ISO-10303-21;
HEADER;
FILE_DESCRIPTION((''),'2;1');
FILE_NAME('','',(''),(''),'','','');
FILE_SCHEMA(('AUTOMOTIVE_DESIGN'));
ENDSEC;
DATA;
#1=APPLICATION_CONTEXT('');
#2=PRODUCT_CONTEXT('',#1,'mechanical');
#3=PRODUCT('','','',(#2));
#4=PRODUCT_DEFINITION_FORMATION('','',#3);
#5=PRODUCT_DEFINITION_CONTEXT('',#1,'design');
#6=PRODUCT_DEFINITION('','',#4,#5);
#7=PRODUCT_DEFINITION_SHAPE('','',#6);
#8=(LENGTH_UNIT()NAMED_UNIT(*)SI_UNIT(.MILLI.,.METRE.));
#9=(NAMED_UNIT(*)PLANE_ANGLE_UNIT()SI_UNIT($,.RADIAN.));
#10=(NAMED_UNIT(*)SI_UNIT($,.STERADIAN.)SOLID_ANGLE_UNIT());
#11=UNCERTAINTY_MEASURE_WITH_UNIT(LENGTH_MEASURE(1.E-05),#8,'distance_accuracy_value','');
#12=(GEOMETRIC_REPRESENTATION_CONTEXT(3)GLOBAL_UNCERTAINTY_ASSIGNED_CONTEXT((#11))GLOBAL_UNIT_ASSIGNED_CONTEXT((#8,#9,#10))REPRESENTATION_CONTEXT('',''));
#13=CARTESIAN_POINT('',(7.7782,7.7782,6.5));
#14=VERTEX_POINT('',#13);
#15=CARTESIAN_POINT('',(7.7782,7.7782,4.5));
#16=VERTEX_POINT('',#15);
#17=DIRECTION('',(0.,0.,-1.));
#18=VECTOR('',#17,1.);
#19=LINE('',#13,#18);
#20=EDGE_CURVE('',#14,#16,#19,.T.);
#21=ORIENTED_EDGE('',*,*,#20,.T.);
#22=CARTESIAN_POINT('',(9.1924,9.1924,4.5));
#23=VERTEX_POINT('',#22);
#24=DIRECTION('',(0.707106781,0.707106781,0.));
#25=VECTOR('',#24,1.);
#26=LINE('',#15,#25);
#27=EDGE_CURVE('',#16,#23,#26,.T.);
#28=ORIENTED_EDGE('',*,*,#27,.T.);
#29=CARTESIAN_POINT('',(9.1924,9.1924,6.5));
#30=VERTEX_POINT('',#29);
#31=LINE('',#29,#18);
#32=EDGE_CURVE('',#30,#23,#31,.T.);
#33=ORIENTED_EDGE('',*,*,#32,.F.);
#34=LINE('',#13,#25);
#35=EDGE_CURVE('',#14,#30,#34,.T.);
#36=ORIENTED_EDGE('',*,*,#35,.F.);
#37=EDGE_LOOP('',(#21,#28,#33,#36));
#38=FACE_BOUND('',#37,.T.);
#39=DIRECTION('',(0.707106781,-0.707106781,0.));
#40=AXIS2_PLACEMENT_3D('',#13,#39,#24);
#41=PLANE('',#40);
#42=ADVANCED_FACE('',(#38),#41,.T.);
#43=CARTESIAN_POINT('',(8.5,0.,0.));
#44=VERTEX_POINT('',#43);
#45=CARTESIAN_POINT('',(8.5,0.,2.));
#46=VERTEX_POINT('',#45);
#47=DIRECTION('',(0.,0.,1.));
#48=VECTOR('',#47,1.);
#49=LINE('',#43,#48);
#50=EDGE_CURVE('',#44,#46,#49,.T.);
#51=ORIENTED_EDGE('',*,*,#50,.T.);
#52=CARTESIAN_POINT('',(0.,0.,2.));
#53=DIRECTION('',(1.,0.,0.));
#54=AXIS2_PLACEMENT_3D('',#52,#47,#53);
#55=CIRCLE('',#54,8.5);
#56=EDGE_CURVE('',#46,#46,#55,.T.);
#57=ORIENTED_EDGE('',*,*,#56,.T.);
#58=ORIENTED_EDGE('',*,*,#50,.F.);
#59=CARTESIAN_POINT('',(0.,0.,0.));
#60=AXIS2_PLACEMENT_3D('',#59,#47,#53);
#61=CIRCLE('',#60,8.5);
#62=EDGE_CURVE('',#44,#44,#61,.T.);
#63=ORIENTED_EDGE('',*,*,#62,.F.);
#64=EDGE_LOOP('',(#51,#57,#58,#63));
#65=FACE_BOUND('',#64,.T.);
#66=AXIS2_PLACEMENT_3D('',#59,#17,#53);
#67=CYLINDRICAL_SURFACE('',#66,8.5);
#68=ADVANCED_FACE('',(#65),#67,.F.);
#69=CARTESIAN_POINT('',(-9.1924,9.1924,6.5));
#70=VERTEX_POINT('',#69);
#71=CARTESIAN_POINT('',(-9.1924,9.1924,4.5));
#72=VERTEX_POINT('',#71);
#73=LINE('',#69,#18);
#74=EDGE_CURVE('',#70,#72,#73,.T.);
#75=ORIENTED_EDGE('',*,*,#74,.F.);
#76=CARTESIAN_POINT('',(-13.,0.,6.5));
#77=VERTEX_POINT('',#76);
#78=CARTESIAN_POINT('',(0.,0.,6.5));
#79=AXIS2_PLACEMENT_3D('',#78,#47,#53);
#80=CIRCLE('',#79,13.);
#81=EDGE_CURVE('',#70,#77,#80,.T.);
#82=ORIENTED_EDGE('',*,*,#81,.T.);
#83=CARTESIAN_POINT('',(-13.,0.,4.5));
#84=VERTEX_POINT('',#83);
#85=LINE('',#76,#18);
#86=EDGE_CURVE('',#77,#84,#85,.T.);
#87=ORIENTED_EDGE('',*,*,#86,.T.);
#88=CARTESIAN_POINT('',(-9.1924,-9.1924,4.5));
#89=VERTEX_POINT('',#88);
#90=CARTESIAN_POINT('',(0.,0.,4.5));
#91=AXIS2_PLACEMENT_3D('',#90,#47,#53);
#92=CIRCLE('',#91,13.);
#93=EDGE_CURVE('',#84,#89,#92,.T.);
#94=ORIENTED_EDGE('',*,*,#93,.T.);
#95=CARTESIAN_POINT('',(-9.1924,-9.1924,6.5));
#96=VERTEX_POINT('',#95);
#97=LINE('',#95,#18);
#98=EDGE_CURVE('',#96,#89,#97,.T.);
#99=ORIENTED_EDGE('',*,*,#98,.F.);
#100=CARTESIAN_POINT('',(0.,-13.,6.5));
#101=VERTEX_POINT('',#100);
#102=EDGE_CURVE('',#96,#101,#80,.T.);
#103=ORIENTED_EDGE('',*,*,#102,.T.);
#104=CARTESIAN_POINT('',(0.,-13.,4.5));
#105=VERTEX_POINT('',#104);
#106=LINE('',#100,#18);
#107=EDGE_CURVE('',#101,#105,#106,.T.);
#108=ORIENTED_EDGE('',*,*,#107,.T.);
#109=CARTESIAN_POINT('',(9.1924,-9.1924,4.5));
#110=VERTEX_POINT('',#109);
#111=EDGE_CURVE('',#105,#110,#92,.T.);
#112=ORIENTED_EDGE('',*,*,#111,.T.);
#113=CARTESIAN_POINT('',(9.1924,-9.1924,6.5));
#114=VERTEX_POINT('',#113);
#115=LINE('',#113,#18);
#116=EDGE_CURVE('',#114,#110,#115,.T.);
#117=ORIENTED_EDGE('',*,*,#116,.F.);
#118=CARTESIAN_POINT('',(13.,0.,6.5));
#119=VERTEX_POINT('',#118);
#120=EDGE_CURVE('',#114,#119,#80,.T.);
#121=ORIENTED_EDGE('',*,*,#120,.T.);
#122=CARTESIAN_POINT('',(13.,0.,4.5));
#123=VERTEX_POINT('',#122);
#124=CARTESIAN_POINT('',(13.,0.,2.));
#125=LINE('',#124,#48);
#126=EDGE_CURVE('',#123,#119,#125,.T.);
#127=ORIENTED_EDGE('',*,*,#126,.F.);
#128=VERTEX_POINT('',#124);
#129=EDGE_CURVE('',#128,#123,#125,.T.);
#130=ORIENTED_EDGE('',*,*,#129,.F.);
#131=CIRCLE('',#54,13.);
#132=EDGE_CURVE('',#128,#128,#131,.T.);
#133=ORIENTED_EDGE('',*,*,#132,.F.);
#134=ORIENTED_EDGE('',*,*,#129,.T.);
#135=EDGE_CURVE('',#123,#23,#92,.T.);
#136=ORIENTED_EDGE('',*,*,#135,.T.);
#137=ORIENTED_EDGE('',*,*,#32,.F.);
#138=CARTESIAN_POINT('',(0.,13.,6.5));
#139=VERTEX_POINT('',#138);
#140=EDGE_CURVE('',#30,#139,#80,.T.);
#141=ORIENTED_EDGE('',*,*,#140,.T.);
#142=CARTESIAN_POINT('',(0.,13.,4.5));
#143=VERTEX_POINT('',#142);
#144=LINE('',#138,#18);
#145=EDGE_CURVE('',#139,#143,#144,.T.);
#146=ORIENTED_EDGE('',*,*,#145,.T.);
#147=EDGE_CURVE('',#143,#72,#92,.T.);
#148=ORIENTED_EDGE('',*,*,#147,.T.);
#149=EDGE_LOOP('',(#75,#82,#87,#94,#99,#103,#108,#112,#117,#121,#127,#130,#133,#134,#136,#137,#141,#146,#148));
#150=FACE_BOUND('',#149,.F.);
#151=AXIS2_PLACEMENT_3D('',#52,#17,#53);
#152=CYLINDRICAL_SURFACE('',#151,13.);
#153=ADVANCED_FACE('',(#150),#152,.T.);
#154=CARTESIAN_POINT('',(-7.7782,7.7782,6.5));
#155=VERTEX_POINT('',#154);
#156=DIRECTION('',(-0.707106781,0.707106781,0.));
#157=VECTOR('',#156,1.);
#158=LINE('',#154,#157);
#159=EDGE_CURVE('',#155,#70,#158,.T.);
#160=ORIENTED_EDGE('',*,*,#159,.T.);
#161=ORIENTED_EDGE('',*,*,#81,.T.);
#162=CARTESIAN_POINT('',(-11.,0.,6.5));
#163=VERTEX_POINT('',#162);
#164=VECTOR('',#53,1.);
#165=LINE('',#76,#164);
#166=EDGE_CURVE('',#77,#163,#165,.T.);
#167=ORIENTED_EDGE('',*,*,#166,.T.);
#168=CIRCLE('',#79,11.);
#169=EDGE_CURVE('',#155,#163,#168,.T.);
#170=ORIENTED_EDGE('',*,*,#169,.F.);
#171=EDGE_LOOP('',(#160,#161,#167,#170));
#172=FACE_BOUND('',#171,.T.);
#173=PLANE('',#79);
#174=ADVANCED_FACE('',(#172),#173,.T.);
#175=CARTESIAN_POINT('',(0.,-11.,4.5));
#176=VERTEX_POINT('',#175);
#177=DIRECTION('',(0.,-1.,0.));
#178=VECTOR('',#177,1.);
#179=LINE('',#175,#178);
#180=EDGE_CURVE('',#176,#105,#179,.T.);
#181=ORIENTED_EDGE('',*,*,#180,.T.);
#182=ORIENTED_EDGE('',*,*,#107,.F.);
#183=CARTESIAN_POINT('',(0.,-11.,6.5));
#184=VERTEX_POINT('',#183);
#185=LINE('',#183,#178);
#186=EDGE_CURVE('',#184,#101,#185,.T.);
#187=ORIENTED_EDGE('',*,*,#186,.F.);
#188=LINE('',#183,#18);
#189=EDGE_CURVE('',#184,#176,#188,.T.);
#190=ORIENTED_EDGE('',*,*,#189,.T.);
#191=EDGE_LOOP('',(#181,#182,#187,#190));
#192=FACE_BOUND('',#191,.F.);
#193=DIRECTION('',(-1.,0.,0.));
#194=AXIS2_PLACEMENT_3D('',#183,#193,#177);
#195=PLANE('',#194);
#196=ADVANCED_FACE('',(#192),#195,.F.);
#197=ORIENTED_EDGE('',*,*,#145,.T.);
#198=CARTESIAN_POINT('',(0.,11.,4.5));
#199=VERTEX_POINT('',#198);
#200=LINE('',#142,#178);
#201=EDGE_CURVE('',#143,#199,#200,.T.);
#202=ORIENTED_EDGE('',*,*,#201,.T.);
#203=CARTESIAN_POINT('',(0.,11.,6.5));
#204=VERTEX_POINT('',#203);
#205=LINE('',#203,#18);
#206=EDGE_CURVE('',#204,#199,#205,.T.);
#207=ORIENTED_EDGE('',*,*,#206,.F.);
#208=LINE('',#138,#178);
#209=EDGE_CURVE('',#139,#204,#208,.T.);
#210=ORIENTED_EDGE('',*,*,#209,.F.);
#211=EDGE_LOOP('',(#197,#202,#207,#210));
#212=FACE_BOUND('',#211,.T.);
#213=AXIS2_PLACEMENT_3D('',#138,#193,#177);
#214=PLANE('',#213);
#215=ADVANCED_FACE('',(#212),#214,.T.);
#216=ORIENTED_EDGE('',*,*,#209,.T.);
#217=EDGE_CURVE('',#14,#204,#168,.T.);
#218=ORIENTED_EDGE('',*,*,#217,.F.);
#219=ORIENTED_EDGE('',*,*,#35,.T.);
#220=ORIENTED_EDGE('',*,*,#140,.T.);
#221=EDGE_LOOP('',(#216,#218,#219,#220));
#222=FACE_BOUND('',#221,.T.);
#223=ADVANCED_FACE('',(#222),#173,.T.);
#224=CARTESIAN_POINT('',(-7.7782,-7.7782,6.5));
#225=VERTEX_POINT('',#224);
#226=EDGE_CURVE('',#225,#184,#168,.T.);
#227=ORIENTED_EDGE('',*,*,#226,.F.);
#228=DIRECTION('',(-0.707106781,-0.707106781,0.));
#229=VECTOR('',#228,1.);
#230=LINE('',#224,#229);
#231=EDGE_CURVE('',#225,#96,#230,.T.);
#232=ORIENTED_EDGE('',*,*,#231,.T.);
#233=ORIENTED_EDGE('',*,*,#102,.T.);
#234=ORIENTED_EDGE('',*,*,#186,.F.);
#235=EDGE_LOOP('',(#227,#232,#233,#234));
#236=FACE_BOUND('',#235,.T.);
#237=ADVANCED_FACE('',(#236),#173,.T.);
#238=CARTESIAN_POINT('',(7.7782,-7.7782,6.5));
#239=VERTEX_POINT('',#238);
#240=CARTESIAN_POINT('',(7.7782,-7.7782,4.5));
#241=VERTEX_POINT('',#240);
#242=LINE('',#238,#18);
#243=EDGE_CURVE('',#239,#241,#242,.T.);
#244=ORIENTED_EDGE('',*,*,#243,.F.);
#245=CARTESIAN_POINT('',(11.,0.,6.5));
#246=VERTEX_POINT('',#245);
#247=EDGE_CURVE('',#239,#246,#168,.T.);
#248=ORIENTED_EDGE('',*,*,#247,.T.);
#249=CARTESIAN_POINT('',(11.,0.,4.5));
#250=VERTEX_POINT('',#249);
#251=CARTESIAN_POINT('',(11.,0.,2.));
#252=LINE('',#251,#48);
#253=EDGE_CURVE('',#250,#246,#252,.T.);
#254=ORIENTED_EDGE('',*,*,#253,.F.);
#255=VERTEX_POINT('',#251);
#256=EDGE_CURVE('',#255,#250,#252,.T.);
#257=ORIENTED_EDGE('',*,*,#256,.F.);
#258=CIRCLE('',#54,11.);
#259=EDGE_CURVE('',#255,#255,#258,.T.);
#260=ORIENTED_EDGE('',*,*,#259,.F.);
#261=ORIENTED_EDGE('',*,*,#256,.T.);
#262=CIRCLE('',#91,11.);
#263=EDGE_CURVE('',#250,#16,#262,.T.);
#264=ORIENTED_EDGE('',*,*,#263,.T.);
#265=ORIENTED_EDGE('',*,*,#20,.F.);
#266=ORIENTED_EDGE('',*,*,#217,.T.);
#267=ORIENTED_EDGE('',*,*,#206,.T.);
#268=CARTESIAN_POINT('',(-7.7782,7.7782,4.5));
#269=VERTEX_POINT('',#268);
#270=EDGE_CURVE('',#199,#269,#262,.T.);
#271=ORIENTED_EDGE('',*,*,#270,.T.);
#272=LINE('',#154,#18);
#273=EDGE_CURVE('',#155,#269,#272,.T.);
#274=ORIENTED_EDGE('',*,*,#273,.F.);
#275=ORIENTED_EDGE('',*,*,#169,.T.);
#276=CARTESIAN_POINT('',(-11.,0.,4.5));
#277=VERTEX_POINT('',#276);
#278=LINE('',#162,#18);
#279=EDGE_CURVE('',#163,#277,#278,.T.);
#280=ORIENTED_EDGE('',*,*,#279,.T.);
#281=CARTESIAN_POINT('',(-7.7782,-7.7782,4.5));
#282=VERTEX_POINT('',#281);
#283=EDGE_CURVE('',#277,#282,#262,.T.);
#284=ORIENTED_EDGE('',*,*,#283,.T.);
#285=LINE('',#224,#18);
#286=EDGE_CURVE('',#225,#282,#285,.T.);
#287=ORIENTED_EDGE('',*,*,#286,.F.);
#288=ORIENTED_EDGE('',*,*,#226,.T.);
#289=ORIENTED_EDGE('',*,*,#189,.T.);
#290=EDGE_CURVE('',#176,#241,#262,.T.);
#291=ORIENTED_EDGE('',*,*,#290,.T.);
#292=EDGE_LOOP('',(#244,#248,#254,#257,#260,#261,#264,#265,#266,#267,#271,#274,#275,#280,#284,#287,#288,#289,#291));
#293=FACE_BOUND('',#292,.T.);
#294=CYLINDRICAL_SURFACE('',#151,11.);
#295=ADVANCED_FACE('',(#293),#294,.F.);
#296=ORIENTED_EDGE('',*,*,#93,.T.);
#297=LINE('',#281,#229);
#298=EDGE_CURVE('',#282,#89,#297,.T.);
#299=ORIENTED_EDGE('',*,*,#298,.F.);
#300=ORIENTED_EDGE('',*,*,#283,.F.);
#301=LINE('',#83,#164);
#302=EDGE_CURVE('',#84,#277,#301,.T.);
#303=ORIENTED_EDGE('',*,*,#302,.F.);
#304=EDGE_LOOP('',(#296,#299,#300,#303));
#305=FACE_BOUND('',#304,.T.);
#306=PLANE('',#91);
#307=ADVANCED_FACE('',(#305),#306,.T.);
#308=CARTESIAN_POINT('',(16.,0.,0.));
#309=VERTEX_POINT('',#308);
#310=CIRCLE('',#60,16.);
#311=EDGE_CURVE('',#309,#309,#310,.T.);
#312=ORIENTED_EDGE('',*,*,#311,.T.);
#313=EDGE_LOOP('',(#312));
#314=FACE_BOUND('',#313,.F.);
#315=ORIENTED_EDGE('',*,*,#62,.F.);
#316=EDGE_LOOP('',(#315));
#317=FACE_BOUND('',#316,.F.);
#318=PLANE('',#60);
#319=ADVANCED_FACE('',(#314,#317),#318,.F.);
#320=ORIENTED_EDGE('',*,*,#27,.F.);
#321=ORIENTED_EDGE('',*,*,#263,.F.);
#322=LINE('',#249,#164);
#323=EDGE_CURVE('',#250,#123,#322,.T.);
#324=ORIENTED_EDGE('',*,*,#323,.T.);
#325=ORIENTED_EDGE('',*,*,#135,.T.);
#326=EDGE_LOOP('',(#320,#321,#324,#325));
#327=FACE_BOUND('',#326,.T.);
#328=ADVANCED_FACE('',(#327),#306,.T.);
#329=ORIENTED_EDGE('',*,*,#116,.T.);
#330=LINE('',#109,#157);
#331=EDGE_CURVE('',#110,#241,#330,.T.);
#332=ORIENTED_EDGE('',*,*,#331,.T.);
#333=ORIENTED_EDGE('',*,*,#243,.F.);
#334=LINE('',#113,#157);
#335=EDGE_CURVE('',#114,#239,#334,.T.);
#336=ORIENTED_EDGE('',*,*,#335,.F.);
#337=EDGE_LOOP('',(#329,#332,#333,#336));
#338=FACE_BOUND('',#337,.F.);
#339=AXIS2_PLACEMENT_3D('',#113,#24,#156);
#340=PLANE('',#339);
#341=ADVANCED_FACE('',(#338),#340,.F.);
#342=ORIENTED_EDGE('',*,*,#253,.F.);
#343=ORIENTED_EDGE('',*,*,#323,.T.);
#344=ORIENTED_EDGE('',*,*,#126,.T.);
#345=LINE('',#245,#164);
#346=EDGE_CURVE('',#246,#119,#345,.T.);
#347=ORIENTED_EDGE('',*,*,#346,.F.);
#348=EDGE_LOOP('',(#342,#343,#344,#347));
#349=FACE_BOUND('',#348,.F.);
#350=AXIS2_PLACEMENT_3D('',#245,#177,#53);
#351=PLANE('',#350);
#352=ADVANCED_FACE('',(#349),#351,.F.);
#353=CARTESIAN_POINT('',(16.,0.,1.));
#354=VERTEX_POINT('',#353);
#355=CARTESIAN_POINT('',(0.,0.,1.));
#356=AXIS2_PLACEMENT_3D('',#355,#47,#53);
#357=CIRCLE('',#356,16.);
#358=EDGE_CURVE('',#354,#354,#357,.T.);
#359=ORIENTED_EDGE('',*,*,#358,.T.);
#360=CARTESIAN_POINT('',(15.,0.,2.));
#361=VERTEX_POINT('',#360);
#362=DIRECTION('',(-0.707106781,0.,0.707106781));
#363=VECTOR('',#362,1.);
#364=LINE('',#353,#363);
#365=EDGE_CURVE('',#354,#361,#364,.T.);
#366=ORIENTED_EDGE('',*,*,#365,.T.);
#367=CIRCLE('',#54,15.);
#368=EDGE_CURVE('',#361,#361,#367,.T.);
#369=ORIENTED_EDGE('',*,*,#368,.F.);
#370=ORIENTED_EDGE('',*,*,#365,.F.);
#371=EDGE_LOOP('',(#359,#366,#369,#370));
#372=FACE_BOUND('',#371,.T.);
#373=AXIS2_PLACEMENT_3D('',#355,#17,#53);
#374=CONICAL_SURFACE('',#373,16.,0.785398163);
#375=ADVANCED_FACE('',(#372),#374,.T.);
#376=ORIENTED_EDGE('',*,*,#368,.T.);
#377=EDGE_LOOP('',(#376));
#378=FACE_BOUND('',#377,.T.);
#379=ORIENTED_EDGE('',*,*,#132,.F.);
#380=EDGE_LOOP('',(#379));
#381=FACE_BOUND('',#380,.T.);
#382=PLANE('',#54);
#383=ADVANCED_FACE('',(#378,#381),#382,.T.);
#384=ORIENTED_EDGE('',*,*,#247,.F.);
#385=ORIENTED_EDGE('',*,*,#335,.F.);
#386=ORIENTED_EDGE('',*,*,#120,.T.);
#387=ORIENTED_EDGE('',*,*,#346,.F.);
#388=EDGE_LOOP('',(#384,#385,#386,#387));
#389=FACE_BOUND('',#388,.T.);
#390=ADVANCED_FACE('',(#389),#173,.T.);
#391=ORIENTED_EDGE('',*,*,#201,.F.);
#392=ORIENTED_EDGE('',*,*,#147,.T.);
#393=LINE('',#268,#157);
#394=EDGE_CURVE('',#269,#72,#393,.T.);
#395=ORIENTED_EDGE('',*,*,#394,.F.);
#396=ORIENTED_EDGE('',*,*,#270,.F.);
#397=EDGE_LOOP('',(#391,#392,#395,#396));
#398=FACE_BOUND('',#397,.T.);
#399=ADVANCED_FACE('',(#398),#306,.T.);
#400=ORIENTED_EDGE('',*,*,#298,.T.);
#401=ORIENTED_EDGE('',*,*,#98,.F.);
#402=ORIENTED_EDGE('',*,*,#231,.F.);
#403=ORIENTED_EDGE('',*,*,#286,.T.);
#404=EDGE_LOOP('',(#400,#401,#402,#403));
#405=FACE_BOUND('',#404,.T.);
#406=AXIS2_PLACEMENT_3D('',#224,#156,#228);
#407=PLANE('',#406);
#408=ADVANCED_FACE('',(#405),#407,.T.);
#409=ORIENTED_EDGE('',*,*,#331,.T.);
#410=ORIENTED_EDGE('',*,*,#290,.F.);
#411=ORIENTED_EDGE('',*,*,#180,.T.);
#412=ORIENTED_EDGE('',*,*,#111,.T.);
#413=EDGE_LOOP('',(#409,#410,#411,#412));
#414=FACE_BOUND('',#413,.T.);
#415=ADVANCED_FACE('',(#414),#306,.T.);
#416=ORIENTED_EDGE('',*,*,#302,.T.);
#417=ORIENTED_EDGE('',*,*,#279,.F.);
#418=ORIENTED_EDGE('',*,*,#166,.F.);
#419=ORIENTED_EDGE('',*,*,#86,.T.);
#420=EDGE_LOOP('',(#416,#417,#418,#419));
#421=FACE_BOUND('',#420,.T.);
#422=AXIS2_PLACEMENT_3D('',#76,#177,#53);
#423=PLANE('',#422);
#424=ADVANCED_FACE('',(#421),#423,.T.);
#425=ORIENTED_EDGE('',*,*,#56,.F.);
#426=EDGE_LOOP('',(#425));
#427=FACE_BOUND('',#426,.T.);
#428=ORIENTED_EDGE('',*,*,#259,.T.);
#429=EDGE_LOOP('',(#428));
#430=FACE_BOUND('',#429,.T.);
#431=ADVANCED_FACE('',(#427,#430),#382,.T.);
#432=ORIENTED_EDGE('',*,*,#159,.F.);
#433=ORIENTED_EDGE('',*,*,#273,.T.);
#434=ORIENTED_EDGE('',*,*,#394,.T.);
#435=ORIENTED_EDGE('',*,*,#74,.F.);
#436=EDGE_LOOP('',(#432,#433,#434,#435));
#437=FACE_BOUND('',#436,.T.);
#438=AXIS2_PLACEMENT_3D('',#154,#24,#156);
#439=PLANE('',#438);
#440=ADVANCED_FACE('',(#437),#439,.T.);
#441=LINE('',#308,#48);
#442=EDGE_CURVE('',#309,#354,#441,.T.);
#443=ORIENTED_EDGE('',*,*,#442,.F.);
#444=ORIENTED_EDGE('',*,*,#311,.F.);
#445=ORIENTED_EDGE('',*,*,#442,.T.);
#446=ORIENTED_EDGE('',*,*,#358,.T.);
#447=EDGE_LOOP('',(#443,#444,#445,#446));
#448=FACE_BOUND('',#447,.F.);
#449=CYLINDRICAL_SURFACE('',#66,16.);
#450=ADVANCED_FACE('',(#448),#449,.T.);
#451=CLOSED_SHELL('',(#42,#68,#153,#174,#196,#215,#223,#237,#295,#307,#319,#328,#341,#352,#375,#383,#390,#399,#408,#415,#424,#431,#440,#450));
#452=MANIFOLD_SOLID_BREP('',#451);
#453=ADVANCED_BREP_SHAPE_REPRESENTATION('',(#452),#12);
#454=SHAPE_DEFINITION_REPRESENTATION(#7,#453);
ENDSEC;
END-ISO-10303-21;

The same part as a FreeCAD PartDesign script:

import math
import FreeCAD as App
import Part
import Sketcher

V = App.Vector


def edges_at(feature, points):
    """Names of the edges that pass closest to the given points."""
    edges = feature.Shape.Edges
    near = lambda p: min(range(len(edges)), key=lambda i: edges[i].distToShape(Part.Vertex(*p))[0])
    return sorted({f"Edge{near(p) + 1}" for p in points})

doc = App.newDocument("Part")
body = doc.addObject("PartDesign::Body", "Body")

sketch1 = body.newObject("Sketcher::SketchObject", "Sketch")
sketch1.AttachmentSupport = (doc.getObject("XY_Plane"), [""])
sketch1.MapMode = "FlatFace"
sketch1.addGeometry([
    Part.Circle(V(0, 0, 0), V(0, 0, 1), 16),
    Part.Circle(V(0, 0, 0), V(0, 0, 1), 8),
], False)
sketch1.addConstraint([
    Sketcher.Constraint("Coincident", 0, 3, -1, 1),
    Sketcher.Constraint("Coincident", 1, 3, -1, 1),
    Sketcher.Constraint("Diameter", 0, 32.0),
    Sketcher.Constraint("Diameter", 1, 17.0),
])
pad1 = body.newObject("PartDesign::Pad", "Pad")
pad1.Profile = sketch1
pad1.Length = 2

sketch2 = body.newObject("Sketcher::SketchObject", "Sketch001")
sketch2.AttachmentSupport = (doc.getObject("XY_Plane"), [""])
sketch2.MapMode = "FlatFace"
sketch2.AttachmentOffset = App.Placement(V(0, 0, 2), App.Rotation())
sketch2.addGeometry([
    Part.Circle(V(0, 0, 0), V(0, 0, 1), 13),
    Part.Circle(V(0, 0, 0), V(0, 0, 1), 11),
], False)
sketch2.addConstraint([
    Sketcher.Constraint("Coincident", 0, 3, -1, 1),
    Sketcher.Constraint("Coincident", 1, 3, -1, 1),
    Sketcher.Constraint("Diameter", 0, 26.0),
    Sketcher.Constraint("Diameter", 1, 22.0),
])
pad2 = body.newObject("PartDesign::Pad", "Pad001")
pad2.Profile = sketch2
pad2.Length = 4.5

sketch3 = body.newObject("Sketcher::SketchObject", "Sketch002")
sketch3.AttachmentSupport = (doc.getObject("XY_Plane"), [""])
sketch3.MapMode = "FlatFace"
sketch3.AttachmentOffset = App.Placement(V(0, 0, 6.5), App.Rotation())
sketch3.addGeometry([
    Part.ArcOfCircle(Part.Circle(V(0, 0, 0), V(0, 0, 1), 11), math.radians(0), math.radians(45)),
    Part.LineSegment(V(11, 0, 0), V(13, 0, 0)),
    Part.ArcOfCircle(Part.Circle(V(0, 0, 0), V(0, 0, 1), 13), math.radians(0), math.radians(45)),
    Part.LineSegment(V(9.2, 9.2, 0), V(7.8, 7.8, 0)),
    Part.LineSegment(V(9.2, -9.2, 0), V(7.8, -7.8, 0)),
    Part.ArcOfCircle(Part.Circle(V(0, 0, 0), V(0, 0, 1), 11), math.radians(-90), math.radians(-45)),
    Part.LineSegment(V(0, -11, 0), V(0, -13, 0)),
    Part.ArcOfCircle(Part.Circle(V(0, 0, 0), V(0, 0, 1), 13), math.radians(-90), math.radians(-45)),
    Part.ArcOfCircle(Part.Circle(V(0, 0, 0), V(0, 0, 1), 11), math.radians(90), math.radians(135)),
    Part.LineSegment(V(0, 11, 0), V(0, 13, 0)),
    Part.ArcOfCircle(Part.Circle(V(0, 0, 0), V(0, 0, 1), 13), math.radians(90), math.radians(135)),
    Part.LineSegment(V(-9.2, 9.2, 0), V(-7.8, 7.8, 0)),
    Part.LineSegment(V(-9.2, -9.2, 0), V(-7.8, -7.8, 0)),
    Part.ArcOfCircle(Part.Circle(V(0, 0, 0), V(0, 0, 1), 11), math.radians(180), math.radians(225)),
    Part.LineSegment(V(-11, 0, 0), V(-13, 0, 0)),
    Part.ArcOfCircle(Part.Circle(V(0, 0, 0), V(0, 0, 1), 13), math.radians(180), math.radians(225)),
], False)
sketch3.addConstraint([
    Sketcher.Constraint("Coincident", 0, 1, 1, 1),
    Sketcher.Constraint("Coincident", 1, 2, 2, 1),
    Sketcher.Constraint("Coincident", 2, 2, 3, 1),
    Sketcher.Constraint("Coincident", 3, 2, 0, 2),
    Sketcher.Constraint("Coincident", 4, 2, 5, 2),
    Sketcher.Constraint("Coincident", 5, 1, 6, 1),
    Sketcher.Constraint("Coincident", 6, 2, 7, 1),
    Sketcher.Constraint("Coincident", 7, 2, 4, 1),
    Sketcher.Constraint("Coincident", 8, 1, 9, 1),
    Sketcher.Constraint("Coincident", 9, 2, 10, 1),
    Sketcher.Constraint("Coincident", 10, 2, 11, 1),
    Sketcher.Constraint("Coincident", 11, 2, 8, 2),
    Sketcher.Constraint("Coincident", 12, 2, 13, 2),
    Sketcher.Constraint("Coincident", 13, 1, 14, 1),
    Sketcher.Constraint("Coincident", 14, 2, 15, 1),
    Sketcher.Constraint("Coincident", 15, 2, 12, 1),
    Sketcher.Constraint("Horizontal", 1),
    Sketcher.Constraint("Vertical", 6),
    Sketcher.Constraint("Vertical", 9),
    Sketcher.Constraint("Horizontal", 14),
    Sketcher.Constraint("Coincident", 0, 3, -1, 1),
    Sketcher.Constraint("Coincident", 2, 3, -1, 1),
    Sketcher.Constraint("Coincident", 5, 3, -1, 1),
    Sketcher.Constraint("Coincident", 7, 3, -1, 1),
    Sketcher.Constraint("Coincident", 8, 3, -1, 1),
    Sketcher.Constraint("Coincident", 10, 3, -1, 1),
    Sketcher.Constraint("Coincident", 13, 3, -1, 1),
    Sketcher.Constraint("Coincident", 15, 3, -1, 1),
    Sketcher.Constraint("Equal", 0, 5),
    Sketcher.Constraint("Equal", 2, 7),
    Sketcher.Constraint("Equal", 5, 8),
    Sketcher.Constraint("Equal", 7, 10),
    Sketcher.Constraint("Equal", 8, 13),
    Sketcher.Constraint("Equal", 10, 15),
    Sketcher.Constraint("PointOnObject", 0, 1, -1),
    Sketcher.Constraint("PointOnObject", 5, 1, -2),
    Sketcher.Constraint("PointOnObject", 8, 1, -2),
    Sketcher.Constraint("PointOnObject", 13, 1, -1),
    Sketcher.Constraint("Perpendicular", 3, 4),
    Sketcher.Constraint("Parallel", 4, 11),
    Sketcher.Constraint("Perpendicular", 11, 12),
    Sketcher.Constraint("Horizontal", 2, 2, 10, 2),
    Sketcher.Constraint("Horizontal", 3, 2, 11, 2),
    Sketcher.Constraint("Horizontal", 4, 2, 12, 2),
    Sketcher.Constraint("Vertical", 3, 2, 4, 2),
    Sketcher.Constraint("Radius", 0, 11.0),
    Sketcher.Constraint("Radius", 2, 13.0),
    Sketcher.Constraint("DistanceX", -1, 1, 2, 2, 9.1924),
])
pocket1 = body.newObject("PartDesign::Pocket", "Pocket")
pocket1.Profile = sketch3
pocket1.Length = 2
doc.recompute()

chamfer = body.newObject("PartDesign::Chamfer", "Chamfer")
chamfer.Base = (pocket1, edges_at(pocket1, [(-16, 0, 2)]))
chamfer.Size = 1

doc.recompute()
